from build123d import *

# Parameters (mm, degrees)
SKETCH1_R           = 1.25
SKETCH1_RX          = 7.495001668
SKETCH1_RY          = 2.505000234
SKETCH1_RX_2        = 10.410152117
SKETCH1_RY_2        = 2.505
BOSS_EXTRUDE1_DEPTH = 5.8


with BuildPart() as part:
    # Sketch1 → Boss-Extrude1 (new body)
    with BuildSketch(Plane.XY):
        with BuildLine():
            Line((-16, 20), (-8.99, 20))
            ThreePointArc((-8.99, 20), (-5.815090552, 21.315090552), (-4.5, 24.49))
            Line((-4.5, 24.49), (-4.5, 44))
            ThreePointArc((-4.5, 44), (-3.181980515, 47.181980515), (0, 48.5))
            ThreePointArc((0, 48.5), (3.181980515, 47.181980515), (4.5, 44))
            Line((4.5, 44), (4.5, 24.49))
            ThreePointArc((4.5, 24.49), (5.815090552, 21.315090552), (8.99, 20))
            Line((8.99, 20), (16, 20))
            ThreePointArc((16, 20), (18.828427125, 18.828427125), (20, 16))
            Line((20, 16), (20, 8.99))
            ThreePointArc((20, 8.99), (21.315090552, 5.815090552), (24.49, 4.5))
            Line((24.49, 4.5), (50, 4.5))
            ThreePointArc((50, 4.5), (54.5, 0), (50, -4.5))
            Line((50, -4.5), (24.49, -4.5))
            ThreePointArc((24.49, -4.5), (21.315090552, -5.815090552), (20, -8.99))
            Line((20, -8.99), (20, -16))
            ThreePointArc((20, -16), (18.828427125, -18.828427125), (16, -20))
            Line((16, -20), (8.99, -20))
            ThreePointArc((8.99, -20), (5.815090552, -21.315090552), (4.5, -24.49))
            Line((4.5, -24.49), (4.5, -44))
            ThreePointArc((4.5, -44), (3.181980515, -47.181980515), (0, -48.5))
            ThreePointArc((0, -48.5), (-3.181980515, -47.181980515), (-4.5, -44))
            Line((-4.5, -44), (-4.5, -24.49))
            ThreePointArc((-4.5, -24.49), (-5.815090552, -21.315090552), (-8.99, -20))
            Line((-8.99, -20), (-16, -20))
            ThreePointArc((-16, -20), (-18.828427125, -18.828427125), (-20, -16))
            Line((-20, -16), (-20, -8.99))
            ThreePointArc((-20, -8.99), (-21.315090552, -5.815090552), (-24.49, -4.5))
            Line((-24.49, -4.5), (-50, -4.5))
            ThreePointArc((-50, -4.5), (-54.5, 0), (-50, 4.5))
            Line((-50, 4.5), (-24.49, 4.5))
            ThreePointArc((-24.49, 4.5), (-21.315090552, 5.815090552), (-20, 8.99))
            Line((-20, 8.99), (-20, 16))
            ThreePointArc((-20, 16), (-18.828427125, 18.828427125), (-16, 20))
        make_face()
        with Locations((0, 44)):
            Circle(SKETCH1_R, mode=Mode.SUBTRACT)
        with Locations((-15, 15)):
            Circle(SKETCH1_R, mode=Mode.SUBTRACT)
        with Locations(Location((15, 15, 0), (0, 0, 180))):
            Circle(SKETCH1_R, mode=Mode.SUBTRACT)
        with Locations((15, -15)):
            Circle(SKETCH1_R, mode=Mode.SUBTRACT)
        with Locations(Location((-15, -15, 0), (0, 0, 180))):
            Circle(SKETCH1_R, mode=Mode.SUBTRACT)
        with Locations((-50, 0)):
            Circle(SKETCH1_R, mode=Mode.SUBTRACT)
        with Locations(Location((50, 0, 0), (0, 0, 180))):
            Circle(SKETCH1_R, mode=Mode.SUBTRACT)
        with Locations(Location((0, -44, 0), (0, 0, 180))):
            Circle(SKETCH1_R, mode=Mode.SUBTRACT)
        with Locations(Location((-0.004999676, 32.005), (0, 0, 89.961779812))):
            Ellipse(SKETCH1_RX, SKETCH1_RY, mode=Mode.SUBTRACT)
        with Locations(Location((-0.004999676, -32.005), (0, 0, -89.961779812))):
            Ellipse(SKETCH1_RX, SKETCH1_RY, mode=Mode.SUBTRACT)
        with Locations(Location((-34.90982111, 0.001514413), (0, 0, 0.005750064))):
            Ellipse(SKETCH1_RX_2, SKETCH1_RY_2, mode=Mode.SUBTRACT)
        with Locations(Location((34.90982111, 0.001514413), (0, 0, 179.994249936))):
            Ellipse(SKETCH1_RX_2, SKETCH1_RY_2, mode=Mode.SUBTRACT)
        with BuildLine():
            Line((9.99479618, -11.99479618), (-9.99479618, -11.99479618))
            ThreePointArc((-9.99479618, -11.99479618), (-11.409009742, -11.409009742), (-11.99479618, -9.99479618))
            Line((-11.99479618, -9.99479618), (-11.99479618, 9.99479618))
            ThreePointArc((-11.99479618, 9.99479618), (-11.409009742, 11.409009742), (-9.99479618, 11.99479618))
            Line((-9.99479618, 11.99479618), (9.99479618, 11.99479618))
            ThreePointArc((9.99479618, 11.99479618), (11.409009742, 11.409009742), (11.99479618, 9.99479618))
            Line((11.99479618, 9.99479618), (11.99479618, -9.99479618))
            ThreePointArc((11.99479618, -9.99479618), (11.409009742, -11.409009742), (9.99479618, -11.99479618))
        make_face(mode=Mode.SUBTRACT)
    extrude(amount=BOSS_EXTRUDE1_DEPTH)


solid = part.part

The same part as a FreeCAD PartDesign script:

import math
import FreeCAD as App
import Part
import Sketcher

doc = App.newDocument("Part")
body = doc.addObject("PartDesign::Body", "Body")

# Sketch on XY plane
sketch1 = doc.addObject("Sketcher::SketchObject", "Sketch")
body.addObject(sketch1)
sketch1.AttachmentSupport = (doc.XY_Plane, [""])
sketch1.MapMode = "FlatFace"
sketch1.addGeometry([
    Part.LineSegment(App.Vector(-8.99, 20, 0), App.Vector(-16, 20, 0)),  # 0
    Part.ArcOfCircle(Part.Circle(App.Vector(-16, 16, 0), App.Vector(0, 0, 1), 4), math.radians(90), math.radians(180)),  # 1
    Part.LineSegment(App.Vector(-20, 16, 0), App.Vector(-20, 8.99, 0)),  # 2
    Part.ArcOfCircle(Part.Circle(App.Vector(-24.49, 8.99, 0), App.Vector(0, 0, 1), 4.49), math.radians(-90), math.radians(0)),  # 3
    Part.LineSegment(App.Vector(-24.49, 4.5, 0), App.Vector(-50, 4.5, 0)),  # 4
    Part.ArcOfCircle(Part.Circle(App.Vector(-50, 0, 0), App.Vector(0, 0, 1), 4.5), math.radians(90), math.radians(270)),  # 5
    Part.LineSegment(App.Vector(-50, -4.5, 0), App.Vector(-24.49, -4.5, 0)),  # 6
    Part.ArcOfCircle(Part.Circle(App.Vector(-24.49, -8.99, 0), App.Vector(0, 0, 1), 4.49), math.radians(0), math.radians(90)),  # 7
    Part.LineSegment(App.Vector(-20, -8.99, 0), App.Vector(-20, -16, 0)),  # 8
    Part.ArcOfCircle(Part.Circle(App.Vector(-16, -16, 0), App.Vector(0, 0, 1), 4), math.radians(180), math.radians(270)),  # 9
    Part.LineSegment(App.Vector(-16, -20, 0), App.Vector(-8.99, -20, 0)),  # 10
    Part.ArcOfCircle(Part.Circle(App.Vector(-8.99, -24.49, 0), App.Vector(0, 0, 1), 4.49), math.radians(0), math.radians(90)),  # 11
    Part.LineSegment(App.Vector(-4.5, -24.49, 0), App.Vector(-4.5, -44, 0)),  # 12
    Part.ArcOfCircle(Part.Circle(App.Vector(0, -44, 0), App.Vector(0, 0, 1), 4.5), math.radians(-180), math.radians(-90)),  # 13
    Part.ArcOfCircle(Part.Circle(App.Vector(0, -44, 0), App.Vector(0, 0, 1), 4.5), math.radians(-90), math.radians(0)),  # 14
    Part.LineSegment(App.Vector(4.5, -44, 0), App.Vector(4.5, -24.49, 0)),  # 15
    Part.ArcOfCircle(Part.Circle(App.Vector(8.99, -24.49, 0), App.Vector(0, 0, 1), 4.49), math.radians(90), math.radians(180)),  # 16
    Part.LineSegment(App.Vector(8.99, -20, 0), App.Vector(16, -20, 0)),  # 17
    Part.ArcOfCircle(Part.Circle(App.Vector(16, -16, 0), App.Vector(0, 0, 1), 4), math.radians(-90), math.radians(0)),  # 18
    Part.LineSegment(App.Vector(20, -16, 0), App.Vector(20, -8.99, 0)),  # 19
    Part.ArcOfCircle(Part.Circle(App.Vector(24.49, -8.99, 0), App.Vector(0, 0, 1), 4.49), math.radians(90), math.radians(180)),  # 20
    Part.LineSegment(App.Vector(24.49, -4.5, 0), App.Vector(50, -4.5, 0)),  # 21
    Part.ArcOfCircle(Part.Circle(App.Vector(50, 0, 0), App.Vector(0, 0, 1), 4.5), math.radians(-90), math.radians(90)),  # 22
    Part.LineSegment(App.Vector(50, 4.5, 0), App.Vector(24.49, 4.5, 0)),  # 23
    Part.ArcOfCircle(Part.Circle(App.Vector(24.49, 8.99, 0), App.Vector(0, 0, 1), 4.49), math.radians(180), math.radians(270)),  # 24
    Part.LineSegment(App.Vector(20, 8.99, 0), App.Vector(20, 16, 0)),  # 25
    Part.ArcOfCircle(Part.Circle(App.Vector(16, 16, 0), App.Vector(0, 0, 1), 4), math.radians(0), math.radians(90)),  # 26
    Part.LineSegment(App.Vector(16, 20, 0), App.Vector(8.99, 20, 0)),  # 27
    Part.ArcOfCircle(Part.Circle(App.Vector(8.99, 24.49, 0), App.Vector(0, 0, 1), 4.49), math.radians(180), math.radians(270)),  # 28
    Part.LineSegment(App.Vector(4.5, 24.49, 0), App.Vector(4.5, 44, 0)),  # 29
    Part.ArcOfCircle(Part.Circle(App.Vector(0, 44, 0), App.Vector(0, 0, 1), 4.5), math.radians(0), math.radians(90)),  # 30
    Part.ArcOfCircle(Part.Circle(App.Vector(0, 44, 0), App.Vector(0, 0, 1), 4.5), math.radians(90), math.radians(180)),  # 31
    Part.LineSegment(App.Vector(-4.5, 44, 0), App.Vector(-4.5, 24.49, 0)),  # 32
    Part.ArcOfCircle(Part.Circle(App.Vector(-8.99, 24.49, 0), App.Vector(0, 0, 1), 4.49), math.radians(-90), math.radians(0)),  # 33
    Part.Circle(App.Vector(15, -15, 0), App.Vector(0, 0, 1), 1.25),  # 34
    Part.Circle(App.Vector(0, -44, 0), App.Vector(0, 0, 1), 1.25),  # 35
    Part.Ellipse(App.Vector(0, -39.5, 0), App.Vector(2.5, -32.003329, 0), App.Vector(-0.005, -32.005, 0)),  # 36
    Part.Circle(App.Vector(-15, -15, 0), App.Vector(0, 0, 1), 1.25),  # 37
    Part.Circle(App.Vector(50, 0, 0), App.Vector(0, 0, 1), 1.25),  # 38
    Part.Ellipse(App.Vector(24.499669, 0.002559, 0), App.Vector(34.90957, -2.503486, 0), App.Vector(34.909821, 0.001514, 0)),  # 39
    Part.Circle(App.Vector(15, 15, 0), App.Vector(0, 0, 1), 1.25),  # 40
    Part.LineSegment(App.Vector(9.994796, -11.994796, 0), App.Vector(-9.994796, -11.994796, 0)),  # 41
    Part.ArcOfCircle(Part.Circle(App.Vector(-9.994796, -9.994796, 0), App.Vector(0, 0, 1), 2), math.radians(-180), math.radians(-90)),  # 42
    Part.LineSegment(App.Vector(-11.994796, -9.994796, 0), App.Vector(-11.994796, 9.994796, 0)),  # 43
    Part.ArcOfCircle(Part.Circle(App.Vector(-9.994796, 9.994796, 0), App.Vector(0, 0, 1), 2), math.radians(90), math.radians(180)),  # 44
    Part.LineSegment(App.Vector(-9.994796, 11.994796, 0), App.Vector(9.994796, 11.994796, 0)),  # 45
    Part.ArcOfCircle(Part.Circle(App.Vector(9.994796, 9.994796, 0), App.Vector(0, 0, 1), 2), math.radians(0), math.radians(90)),  # 46
    Part.LineSegment(App.Vector(11.994796, 9.994796, 0), App.Vector(11.994796, -9.994796, 0)),  # 47
    Part.ArcOfCircle(Part.Circle(App.Vector(9.994796, -9.994796, 0), App.Vector(0, 0, 1), 2), math.radians(-90), math.radians(0)),  # 48
    Part.Circle(App.Vector(-15, 15, 0), App.Vector(0, 0, 1), 1.25),  # 49
    Part.Ellipse(App.Vector(-24.499669, 0.002559, 0), App.Vector(-34.910073, 2.506514, 0), App.Vector(-34.909821, 0.001514, 0)),  # 50
    Part.Circle(App.Vector(-50, 0, 0), App.Vector(0, 0, 1), 1.25),  # 51
    Part.Ellipse(App.Vector(0, 39.5, 0), App.Vector(-2.509999, 32.006671, 0), App.Vector(-0.005, 32.005, 0)),  # 52
    Part.Circle(App.Vector(0, 44, 0), App.Vector(0, 0, 1), 1.25),  # 53
], False)
sketch1.addConstraint([
    Sketcher.Constraint("Block", 36),
    Sketcher.Constraint("Block", 39),
    Sketcher.Constraint("Block", 50),
    Sketcher.Constraint("Block", 52),
    Sketcher.Constraint("Tangent", 0, 2, 1, 1),
    Sketcher.Constraint("Tangent", 1, 2, 2, 1),
    Sketcher.Constraint("Tangent", 2, 2, 3, 2),
    Sketcher.Constraint("Tangent", 3, 1, 4, 1),
    Sketcher.Constraint("Tangent", 4, 2, 5, 1),
    Sketcher.Constraint("Tangent", 5, 2, 6, 1),
    Sketcher.Constraint("Tangent", 6, 2, 7, 2),
    Sketcher.Constraint("Tangent", 7, 1, 8, 1),
    Sketcher.Constraint("Tangent", 8, 2, 9, 1),
    Sketcher.Constraint("Tangent", 9, 2, 10, 1),
    Sketcher.Constraint("Tangent", 10, 2, 11, 2),
    Sketcher.Constraint("Tangent", 11, 1, 12, 1),
    Sketcher.Constraint("Tangent", 12, 2, 13, 1),
    Sketcher.Constraint("Tangent", 13, 2, 14, 1),
    Sketcher.Constraint("Tangent", 14, 2, 15, 1),
    Sketcher.Constraint("Tangent", 15, 2, 16, 2),
    Sketcher.Constraint("Tangent", 16, 1, 17, 1),
    Sketcher.Constraint("Tangent", 17, 2, 18, 1),
    Sketcher.Constraint("Tangent", 18, 2, 19, 1),
    Sketcher.Constraint("Tangent", 19, 2, 20, 2),
    Sketcher.Constraint("Tangent", 20, 1, 21, 1),
    Sketcher.Constraint("Tangent", 21, 2, 22, 1),
    Sketcher.Constraint("Tangent", 22, 2, 23, 1),
    Sketcher.Constraint("Tangent", 23, 2, 24, 2),
    Sketcher.Constraint("Tangent", 24, 1, 25, 1),
    Sketcher.Constraint("Tangent", 25, 2, 26, 1),
    Sketcher.Constraint("Tangent", 26, 2, 27, 1),
    Sketcher.Constraint("Tangent", 27, 2, 28, 2),
    Sketcher.Constraint("Tangent", 28, 1, 29, 1),
    Sketcher.Constraint("Tangent", 29, 2, 30, 1),
    Sketcher.Constraint("Tangent", 30, 2, 31, 1),
    Sketcher.Constraint("Tangent", 31, 2, 32, 1),
    Sketcher.Constraint("Tangent", 32, 2, 33, 2),
    Sketcher.Constraint("Tangent", 33, 1, 0, 1),
    Sketcher.Constraint("Tangent", 41, 2, 42, 2),
    Sketcher.Constraint("Tangent", 42, 1, 43, 1),
    Sketcher.Constraint("Tangent", 43, 2, 44, 2),
    Sketcher.Constraint("Tangent", 44, 1, 45, 1),
    Sketcher.Constraint("Tangent", 45, 2, 46, 2),
    Sketcher.Constraint("Tangent", 46, 1, 47, 1),
    Sketcher.Constraint("Tangent", 47, 2, 48, 2),
    Sketcher.Constraint("Tangent", 48, 1, 41, 1),
    Sketcher.Constraint("Horizontal", 0),
    Sketcher.Constraint("Vertical", 2),
    Sketcher.Constraint("Horizontal", 4),
    Sketcher.Constraint("Horizontal", 6),
    Sketcher.Constraint("Vertical", 8),
    Sketcher.Constraint("Horizontal", 10),
    Sketcher.Constraint("Vertical", 12),
    Sketcher.Constraint("Vertical", 15),
    Sketcher.Constraint("Horizontal", 17),
    Sketcher.Constraint("Vertical", 19),
    Sketcher.Constraint("Horizontal", 21),
    Sketcher.Constraint("Horizontal", 23),
    Sketcher.Constraint("Vertical", 25),
    Sketcher.Constraint("Horizontal", 27),
    Sketcher.Constraint("Vertical", 29),
    Sketcher.Constraint("Vertical", 32),
    Sketcher.Constraint("Horizontal", 41),
    Sketcher.Constraint("Vertical", 43),
    Sketcher.Constraint("Horizontal", 45),
    Sketcher.Constraint("Vertical", 47),
    Sketcher.Constraint("Coincident", 35, 3, 13, 3),
    Sketcher.Constraint("Coincident", 38, 3, 22, 3),
    Sketcher.Constraint("Coincident", 51, 3, 5, 3),
    Sketcher.Constraint("Coincident", 53, 3, 30, 3),
    Sketcher.Constraint("Equal", 3, 7),
    Sketcher.Constraint("Equal", 1, 9),
    Sketcher.Constraint("Equal", 7, 11),
    Sketcher.Constraint("Equal", 5, 13),
    Sketcher.Constraint("Equal", 13, 14),
    Sketcher.Constraint("Equal", 11, 16),
    Sketcher.Constraint("Equal", 9, 18),
    Sketcher.Constraint("Equal", 16, 20),
    Sketcher.Constraint("Equal", 14, 22),
    Sketcher.Constraint("Equal", 20, 24),
    Sketcher.Constraint("Equal", 18, 26),
    Sketcher.Constraint("Equal", 24, 28),
    Sketcher.Constraint("Equal", 22, 30),
    Sketcher.Constraint("Equal", 30, 31),
    Sketcher.Constraint("Equal", 28, 33),
    Sketcher.Constraint("Equal", 34, 35),
    Sketcher.Constraint("Equal", 35, 37),
    Sketcher.Constraint("Equal", 37, 38),
    Sketcher.Constraint("Equal", 38, 40),
    Sketcher.Constraint("Equal", 42, 44),
    Sketcher.Constraint("Equal", 44, 46),
    Sketcher.Constraint("Equal", 46, 48),
    Sketcher.Constraint("Equal", 40, 49),
    Sketcher.Constraint("Equal", 49, 51),
    Sketcher.Constraint("Equal", 51, 53),
    Sketcher.Constraint("Symmetric", 1, 3, 18, 3, -1, 1),
    Sketcher.Constraint("Symmetric", 5, 3, 22, 3, -1, 1),
    Sketcher.Constraint("Symmetric", 9, 3, 26, 3, -1, 1),
    Sketcher.Constraint("Symmetric", 13, 3, 30, 3, -1, 1),
    Sketcher.Constraint("Symmetric", 37, 3, 40, 3, -1, 1),
    Sketcher.Constraint("Symmetric", 42, 3, 46, 3, -1, 1),
    Sketcher.Constraint("Symmetric", 34, 3, 49, 3, -1, 1),
    Sketcher.Constraint("Symmetric", 11, 3, 16, 3, -2),
    Sketcher.Constraint("Symmetric", 7, 3, 20, 3, -2),
    Sketcher.Constraint("Symmetric", 34, 3, 37, 3, -2),
    Sketcher.Constraint("PointOnObject", 13, 2, -2),
    Sketcher.Constraint("PointOnObject", 30, 2, -2),
    Sketcher.Constraint("Equal", 27, 2),
    Sketcher.Constraint("Equal", 45, 43),
    Sketcher.Constraint("Radius", 1, 4.0),
    Sketcher.Constraint("Radius", 42, 2.0),
    Sketcher.Constraint("Diameter", 34, 2.5),
    Sketcher.Constraint("Radius", 5, 4.5),
    Sketcher.Constraint("Radius", 3, 4.49),
    Sketcher.Constraint("DistanceX", 1, 3, -1, 1, 16.0),
    Sketcher.Constraint("DistanceX", 5, 3, -1, 1, 50.0),
    Sketcher.Constraint("DistanceY", 13, 3, -1, 1, 44.0),
    Sketcher.Constraint("DistanceX", -1, 1, 34, 3, 15.0),
    Sketcher.Constraint("DistanceY", 34, 3, -1, 1, 15.0),
    Sketcher.Constraint("DistanceX", 41, 2, 41, 1, 19.989592),
])
pad1 = doc.addObject("PartDesign::Pad", "Pad")
body.addObject(pad1)
pad1.Profile = sketch1
pad1.Length = 5.8

doc.recompute()
